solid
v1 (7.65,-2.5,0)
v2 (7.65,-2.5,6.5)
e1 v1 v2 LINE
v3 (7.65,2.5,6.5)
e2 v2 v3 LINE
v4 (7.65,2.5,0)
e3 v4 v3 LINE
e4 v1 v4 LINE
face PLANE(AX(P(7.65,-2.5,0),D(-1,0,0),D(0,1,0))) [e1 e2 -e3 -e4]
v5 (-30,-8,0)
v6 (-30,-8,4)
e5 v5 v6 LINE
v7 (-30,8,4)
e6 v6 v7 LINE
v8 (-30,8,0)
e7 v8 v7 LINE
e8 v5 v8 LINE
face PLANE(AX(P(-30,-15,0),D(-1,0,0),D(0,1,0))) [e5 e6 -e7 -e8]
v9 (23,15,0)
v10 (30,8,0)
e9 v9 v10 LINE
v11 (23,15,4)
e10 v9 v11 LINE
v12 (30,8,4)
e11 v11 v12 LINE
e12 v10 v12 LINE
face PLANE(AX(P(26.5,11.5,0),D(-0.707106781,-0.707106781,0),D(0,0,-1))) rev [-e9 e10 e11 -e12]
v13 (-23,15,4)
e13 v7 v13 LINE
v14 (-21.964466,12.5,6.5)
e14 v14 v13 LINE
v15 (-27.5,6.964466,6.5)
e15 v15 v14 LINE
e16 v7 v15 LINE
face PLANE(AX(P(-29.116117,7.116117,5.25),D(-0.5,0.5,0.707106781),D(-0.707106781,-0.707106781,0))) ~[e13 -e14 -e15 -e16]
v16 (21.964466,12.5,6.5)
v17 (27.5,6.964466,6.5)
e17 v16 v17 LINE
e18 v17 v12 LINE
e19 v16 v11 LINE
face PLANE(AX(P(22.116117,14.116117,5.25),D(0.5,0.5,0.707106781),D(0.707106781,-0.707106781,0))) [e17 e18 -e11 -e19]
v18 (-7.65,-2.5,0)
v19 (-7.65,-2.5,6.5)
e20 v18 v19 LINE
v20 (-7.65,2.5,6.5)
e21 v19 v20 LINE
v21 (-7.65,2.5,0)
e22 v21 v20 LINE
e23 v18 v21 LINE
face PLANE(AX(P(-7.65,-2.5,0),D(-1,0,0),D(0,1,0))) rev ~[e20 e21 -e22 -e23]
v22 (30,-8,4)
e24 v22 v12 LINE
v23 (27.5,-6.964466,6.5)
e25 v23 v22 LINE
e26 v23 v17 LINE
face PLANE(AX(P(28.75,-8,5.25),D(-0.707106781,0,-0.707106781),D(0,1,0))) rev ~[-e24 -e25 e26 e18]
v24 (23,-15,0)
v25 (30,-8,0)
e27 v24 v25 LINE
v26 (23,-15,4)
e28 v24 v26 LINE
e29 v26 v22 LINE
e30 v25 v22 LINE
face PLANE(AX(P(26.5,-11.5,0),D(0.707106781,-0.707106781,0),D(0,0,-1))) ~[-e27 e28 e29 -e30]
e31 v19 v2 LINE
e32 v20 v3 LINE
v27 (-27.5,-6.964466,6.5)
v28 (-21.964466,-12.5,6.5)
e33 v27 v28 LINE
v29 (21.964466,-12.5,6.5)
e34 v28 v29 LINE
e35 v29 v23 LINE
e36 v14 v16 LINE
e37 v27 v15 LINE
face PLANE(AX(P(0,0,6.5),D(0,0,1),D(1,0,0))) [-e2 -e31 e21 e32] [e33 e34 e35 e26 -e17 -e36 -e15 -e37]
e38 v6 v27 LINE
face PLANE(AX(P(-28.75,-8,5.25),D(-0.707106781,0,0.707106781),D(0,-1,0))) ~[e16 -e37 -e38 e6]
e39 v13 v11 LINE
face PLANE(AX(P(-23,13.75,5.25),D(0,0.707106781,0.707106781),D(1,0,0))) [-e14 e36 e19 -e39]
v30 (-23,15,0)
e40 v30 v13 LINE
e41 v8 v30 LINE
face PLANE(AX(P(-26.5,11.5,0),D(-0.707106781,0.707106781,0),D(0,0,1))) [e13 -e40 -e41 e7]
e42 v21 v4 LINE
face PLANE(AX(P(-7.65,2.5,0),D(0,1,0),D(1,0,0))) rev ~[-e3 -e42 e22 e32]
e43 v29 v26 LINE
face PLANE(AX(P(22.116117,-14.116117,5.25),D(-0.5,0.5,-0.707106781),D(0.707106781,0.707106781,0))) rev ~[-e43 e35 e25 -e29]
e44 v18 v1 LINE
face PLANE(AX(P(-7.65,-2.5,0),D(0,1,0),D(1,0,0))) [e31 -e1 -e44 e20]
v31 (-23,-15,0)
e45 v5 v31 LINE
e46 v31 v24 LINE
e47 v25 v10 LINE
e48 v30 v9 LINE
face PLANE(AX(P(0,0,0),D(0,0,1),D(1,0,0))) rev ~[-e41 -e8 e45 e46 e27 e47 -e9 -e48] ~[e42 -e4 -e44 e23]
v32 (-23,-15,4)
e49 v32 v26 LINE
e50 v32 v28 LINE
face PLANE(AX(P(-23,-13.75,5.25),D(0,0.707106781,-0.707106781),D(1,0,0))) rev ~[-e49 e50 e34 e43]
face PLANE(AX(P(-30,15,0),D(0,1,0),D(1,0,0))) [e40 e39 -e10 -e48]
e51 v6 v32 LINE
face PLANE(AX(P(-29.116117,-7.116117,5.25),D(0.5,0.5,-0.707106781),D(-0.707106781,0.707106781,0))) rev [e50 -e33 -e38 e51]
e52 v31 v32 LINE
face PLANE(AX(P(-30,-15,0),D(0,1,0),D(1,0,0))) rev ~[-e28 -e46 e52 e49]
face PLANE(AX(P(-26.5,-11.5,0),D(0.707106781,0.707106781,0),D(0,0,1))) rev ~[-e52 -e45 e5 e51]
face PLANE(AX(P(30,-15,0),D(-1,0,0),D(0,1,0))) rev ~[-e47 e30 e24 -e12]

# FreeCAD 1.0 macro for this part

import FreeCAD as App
import Part
import Sketcher


def edges_at(feature, points):
    """Names of the edges that pass closest to the given points."""
    edges = feature.Shape.Edges
    near = lambda p: min(range(len(edges)), key=lambda i: edges[i].distToShape(Part.Vertex(*p))[0])
    return sorted({f"Edge{near(p) + 1}" for p in points})

doc = App.newDocument("Part")
body = doc.addObject("PartDesign::Body", "Body")

# Sketch on XY plane
sketch1 = body.newObject("Sketcher::SketchObject", "Sketch")
sketch1.AttachmentSupport = (doc.getObject("XY_Plane"), [""])
sketch1.MapMode = "FlatFace"
sketch1.addGeometry([
    Part.LineSegment(App.Vector(-30, 15, 0), App.Vector(-30, -15, 0)),  # 0
    Part.LineSegment(App.Vector(-30, -15, 0), App.Vector(30, -15, 0)),  # 1
    Part.LineSegment(App.Vector(30, -15, 0), App.Vector(30, 15, 0)),  # 2
    Part.LineSegment(App.Vector(30, 15, 0), App.Vector(-30, 15, 0)),  # 3
    Part.LineSegment(App.Vector(8, -2, 0), App.Vector(-8, -2, 0)),  # 4
    Part.LineSegment(App.Vector(-8, -2, 0), App.Vector(-8, 2, 0)),  # 5
    Part.LineSegment(App.Vector(-8, 2, 0), App.Vector(8, 2, 0)),  # 6
    Part.LineSegment(App.Vector(8, 2, 0), App.Vector(8, -2, 0)),  # 7
], False)
sketch1.addConstraint([
    Sketcher.Constraint("Coincident", 0, 2, 1, 1),
    Sketcher.Constraint("Coincident", 1, 2, 2, 1),
    Sketcher.Constraint("Coincident", 2, 2, 3, 1),
    Sketcher.Constraint("Coincident", 3, 2, 0, 1),
    Sketcher.Constraint("Coincident", 4, 2, 5, 1),
    Sketcher.Constraint("Coincident", 5, 2, 6, 1),
    Sketcher.Constraint("Coincident", 6, 2, 7, 1),
    Sketcher.Constraint("Coincident", 7, 2, 4, 1),
    Sketcher.Constraint("Vertical", 0),
    Sketcher.Constraint("Horizontal", 1),
    Sketcher.Constraint("Vertical", 2),
    Sketcher.Constraint("Horizontal", 3),
    Sketcher.Constraint("Horizontal", 4),
    Sketcher.Constraint("Vertical", 5),
    Sketcher.Constraint("Horizontal", 6),
    Sketcher.Constraint("Vertical", 7),
    Sketcher.Constraint("Symmetric", 0, 2, 2, 2, -1, 1),
    Sketcher.Constraint("Symmetric", 4, 2, 6, 2, -1, 1),
    Sketcher.Constraint("DistanceX", 1, 1, 1, 2, 60.0),
    Sketcher.Constraint("DistanceY", 0, 2, 0, 1, 30.0),
    Sketcher.Constraint("DistanceY", 5, 1, 5, 2, 5.0),
    Sketcher.Constraint("DistanceX", 4, 2, 4, 1, 15.3),
])
pad1 = body.newObject("PartDesign::Pad", "Pad")
pad1.Profile = sketch1
pad1.Length = 6.5
doc.recompute()

chamfer = body.newObject("PartDesign::Chamfer", "Chamfer")
chamfer.Base = (pad1, edges_at(pad1, [
    (-30, -15, 3.25),
    (30, -15, 3.25),
    (30, 15, 3.25),
    (-30, 15, 3.25),
]))
chamfer.Size = 7
doc.recompute()

chamfer2 = body.newObject("PartDesign::Chamfer", "Chamfer001")
chamfer2.Base = (chamfer, edges_at(chamfer, [
    (0, 15, 6.5),
    (-26.5, 11.5, 6.5),
    (-30, 0, 6.5),
    (-26.5, -11.5, 6.5),
    (0, -15, 6.5),
    (26.5, -11.5, 6.5),
    (30, 0, 6.5),
    (26.5, 11.5, 6.5),
]))
chamfer2.Size = 2.5

doc.recompute()
